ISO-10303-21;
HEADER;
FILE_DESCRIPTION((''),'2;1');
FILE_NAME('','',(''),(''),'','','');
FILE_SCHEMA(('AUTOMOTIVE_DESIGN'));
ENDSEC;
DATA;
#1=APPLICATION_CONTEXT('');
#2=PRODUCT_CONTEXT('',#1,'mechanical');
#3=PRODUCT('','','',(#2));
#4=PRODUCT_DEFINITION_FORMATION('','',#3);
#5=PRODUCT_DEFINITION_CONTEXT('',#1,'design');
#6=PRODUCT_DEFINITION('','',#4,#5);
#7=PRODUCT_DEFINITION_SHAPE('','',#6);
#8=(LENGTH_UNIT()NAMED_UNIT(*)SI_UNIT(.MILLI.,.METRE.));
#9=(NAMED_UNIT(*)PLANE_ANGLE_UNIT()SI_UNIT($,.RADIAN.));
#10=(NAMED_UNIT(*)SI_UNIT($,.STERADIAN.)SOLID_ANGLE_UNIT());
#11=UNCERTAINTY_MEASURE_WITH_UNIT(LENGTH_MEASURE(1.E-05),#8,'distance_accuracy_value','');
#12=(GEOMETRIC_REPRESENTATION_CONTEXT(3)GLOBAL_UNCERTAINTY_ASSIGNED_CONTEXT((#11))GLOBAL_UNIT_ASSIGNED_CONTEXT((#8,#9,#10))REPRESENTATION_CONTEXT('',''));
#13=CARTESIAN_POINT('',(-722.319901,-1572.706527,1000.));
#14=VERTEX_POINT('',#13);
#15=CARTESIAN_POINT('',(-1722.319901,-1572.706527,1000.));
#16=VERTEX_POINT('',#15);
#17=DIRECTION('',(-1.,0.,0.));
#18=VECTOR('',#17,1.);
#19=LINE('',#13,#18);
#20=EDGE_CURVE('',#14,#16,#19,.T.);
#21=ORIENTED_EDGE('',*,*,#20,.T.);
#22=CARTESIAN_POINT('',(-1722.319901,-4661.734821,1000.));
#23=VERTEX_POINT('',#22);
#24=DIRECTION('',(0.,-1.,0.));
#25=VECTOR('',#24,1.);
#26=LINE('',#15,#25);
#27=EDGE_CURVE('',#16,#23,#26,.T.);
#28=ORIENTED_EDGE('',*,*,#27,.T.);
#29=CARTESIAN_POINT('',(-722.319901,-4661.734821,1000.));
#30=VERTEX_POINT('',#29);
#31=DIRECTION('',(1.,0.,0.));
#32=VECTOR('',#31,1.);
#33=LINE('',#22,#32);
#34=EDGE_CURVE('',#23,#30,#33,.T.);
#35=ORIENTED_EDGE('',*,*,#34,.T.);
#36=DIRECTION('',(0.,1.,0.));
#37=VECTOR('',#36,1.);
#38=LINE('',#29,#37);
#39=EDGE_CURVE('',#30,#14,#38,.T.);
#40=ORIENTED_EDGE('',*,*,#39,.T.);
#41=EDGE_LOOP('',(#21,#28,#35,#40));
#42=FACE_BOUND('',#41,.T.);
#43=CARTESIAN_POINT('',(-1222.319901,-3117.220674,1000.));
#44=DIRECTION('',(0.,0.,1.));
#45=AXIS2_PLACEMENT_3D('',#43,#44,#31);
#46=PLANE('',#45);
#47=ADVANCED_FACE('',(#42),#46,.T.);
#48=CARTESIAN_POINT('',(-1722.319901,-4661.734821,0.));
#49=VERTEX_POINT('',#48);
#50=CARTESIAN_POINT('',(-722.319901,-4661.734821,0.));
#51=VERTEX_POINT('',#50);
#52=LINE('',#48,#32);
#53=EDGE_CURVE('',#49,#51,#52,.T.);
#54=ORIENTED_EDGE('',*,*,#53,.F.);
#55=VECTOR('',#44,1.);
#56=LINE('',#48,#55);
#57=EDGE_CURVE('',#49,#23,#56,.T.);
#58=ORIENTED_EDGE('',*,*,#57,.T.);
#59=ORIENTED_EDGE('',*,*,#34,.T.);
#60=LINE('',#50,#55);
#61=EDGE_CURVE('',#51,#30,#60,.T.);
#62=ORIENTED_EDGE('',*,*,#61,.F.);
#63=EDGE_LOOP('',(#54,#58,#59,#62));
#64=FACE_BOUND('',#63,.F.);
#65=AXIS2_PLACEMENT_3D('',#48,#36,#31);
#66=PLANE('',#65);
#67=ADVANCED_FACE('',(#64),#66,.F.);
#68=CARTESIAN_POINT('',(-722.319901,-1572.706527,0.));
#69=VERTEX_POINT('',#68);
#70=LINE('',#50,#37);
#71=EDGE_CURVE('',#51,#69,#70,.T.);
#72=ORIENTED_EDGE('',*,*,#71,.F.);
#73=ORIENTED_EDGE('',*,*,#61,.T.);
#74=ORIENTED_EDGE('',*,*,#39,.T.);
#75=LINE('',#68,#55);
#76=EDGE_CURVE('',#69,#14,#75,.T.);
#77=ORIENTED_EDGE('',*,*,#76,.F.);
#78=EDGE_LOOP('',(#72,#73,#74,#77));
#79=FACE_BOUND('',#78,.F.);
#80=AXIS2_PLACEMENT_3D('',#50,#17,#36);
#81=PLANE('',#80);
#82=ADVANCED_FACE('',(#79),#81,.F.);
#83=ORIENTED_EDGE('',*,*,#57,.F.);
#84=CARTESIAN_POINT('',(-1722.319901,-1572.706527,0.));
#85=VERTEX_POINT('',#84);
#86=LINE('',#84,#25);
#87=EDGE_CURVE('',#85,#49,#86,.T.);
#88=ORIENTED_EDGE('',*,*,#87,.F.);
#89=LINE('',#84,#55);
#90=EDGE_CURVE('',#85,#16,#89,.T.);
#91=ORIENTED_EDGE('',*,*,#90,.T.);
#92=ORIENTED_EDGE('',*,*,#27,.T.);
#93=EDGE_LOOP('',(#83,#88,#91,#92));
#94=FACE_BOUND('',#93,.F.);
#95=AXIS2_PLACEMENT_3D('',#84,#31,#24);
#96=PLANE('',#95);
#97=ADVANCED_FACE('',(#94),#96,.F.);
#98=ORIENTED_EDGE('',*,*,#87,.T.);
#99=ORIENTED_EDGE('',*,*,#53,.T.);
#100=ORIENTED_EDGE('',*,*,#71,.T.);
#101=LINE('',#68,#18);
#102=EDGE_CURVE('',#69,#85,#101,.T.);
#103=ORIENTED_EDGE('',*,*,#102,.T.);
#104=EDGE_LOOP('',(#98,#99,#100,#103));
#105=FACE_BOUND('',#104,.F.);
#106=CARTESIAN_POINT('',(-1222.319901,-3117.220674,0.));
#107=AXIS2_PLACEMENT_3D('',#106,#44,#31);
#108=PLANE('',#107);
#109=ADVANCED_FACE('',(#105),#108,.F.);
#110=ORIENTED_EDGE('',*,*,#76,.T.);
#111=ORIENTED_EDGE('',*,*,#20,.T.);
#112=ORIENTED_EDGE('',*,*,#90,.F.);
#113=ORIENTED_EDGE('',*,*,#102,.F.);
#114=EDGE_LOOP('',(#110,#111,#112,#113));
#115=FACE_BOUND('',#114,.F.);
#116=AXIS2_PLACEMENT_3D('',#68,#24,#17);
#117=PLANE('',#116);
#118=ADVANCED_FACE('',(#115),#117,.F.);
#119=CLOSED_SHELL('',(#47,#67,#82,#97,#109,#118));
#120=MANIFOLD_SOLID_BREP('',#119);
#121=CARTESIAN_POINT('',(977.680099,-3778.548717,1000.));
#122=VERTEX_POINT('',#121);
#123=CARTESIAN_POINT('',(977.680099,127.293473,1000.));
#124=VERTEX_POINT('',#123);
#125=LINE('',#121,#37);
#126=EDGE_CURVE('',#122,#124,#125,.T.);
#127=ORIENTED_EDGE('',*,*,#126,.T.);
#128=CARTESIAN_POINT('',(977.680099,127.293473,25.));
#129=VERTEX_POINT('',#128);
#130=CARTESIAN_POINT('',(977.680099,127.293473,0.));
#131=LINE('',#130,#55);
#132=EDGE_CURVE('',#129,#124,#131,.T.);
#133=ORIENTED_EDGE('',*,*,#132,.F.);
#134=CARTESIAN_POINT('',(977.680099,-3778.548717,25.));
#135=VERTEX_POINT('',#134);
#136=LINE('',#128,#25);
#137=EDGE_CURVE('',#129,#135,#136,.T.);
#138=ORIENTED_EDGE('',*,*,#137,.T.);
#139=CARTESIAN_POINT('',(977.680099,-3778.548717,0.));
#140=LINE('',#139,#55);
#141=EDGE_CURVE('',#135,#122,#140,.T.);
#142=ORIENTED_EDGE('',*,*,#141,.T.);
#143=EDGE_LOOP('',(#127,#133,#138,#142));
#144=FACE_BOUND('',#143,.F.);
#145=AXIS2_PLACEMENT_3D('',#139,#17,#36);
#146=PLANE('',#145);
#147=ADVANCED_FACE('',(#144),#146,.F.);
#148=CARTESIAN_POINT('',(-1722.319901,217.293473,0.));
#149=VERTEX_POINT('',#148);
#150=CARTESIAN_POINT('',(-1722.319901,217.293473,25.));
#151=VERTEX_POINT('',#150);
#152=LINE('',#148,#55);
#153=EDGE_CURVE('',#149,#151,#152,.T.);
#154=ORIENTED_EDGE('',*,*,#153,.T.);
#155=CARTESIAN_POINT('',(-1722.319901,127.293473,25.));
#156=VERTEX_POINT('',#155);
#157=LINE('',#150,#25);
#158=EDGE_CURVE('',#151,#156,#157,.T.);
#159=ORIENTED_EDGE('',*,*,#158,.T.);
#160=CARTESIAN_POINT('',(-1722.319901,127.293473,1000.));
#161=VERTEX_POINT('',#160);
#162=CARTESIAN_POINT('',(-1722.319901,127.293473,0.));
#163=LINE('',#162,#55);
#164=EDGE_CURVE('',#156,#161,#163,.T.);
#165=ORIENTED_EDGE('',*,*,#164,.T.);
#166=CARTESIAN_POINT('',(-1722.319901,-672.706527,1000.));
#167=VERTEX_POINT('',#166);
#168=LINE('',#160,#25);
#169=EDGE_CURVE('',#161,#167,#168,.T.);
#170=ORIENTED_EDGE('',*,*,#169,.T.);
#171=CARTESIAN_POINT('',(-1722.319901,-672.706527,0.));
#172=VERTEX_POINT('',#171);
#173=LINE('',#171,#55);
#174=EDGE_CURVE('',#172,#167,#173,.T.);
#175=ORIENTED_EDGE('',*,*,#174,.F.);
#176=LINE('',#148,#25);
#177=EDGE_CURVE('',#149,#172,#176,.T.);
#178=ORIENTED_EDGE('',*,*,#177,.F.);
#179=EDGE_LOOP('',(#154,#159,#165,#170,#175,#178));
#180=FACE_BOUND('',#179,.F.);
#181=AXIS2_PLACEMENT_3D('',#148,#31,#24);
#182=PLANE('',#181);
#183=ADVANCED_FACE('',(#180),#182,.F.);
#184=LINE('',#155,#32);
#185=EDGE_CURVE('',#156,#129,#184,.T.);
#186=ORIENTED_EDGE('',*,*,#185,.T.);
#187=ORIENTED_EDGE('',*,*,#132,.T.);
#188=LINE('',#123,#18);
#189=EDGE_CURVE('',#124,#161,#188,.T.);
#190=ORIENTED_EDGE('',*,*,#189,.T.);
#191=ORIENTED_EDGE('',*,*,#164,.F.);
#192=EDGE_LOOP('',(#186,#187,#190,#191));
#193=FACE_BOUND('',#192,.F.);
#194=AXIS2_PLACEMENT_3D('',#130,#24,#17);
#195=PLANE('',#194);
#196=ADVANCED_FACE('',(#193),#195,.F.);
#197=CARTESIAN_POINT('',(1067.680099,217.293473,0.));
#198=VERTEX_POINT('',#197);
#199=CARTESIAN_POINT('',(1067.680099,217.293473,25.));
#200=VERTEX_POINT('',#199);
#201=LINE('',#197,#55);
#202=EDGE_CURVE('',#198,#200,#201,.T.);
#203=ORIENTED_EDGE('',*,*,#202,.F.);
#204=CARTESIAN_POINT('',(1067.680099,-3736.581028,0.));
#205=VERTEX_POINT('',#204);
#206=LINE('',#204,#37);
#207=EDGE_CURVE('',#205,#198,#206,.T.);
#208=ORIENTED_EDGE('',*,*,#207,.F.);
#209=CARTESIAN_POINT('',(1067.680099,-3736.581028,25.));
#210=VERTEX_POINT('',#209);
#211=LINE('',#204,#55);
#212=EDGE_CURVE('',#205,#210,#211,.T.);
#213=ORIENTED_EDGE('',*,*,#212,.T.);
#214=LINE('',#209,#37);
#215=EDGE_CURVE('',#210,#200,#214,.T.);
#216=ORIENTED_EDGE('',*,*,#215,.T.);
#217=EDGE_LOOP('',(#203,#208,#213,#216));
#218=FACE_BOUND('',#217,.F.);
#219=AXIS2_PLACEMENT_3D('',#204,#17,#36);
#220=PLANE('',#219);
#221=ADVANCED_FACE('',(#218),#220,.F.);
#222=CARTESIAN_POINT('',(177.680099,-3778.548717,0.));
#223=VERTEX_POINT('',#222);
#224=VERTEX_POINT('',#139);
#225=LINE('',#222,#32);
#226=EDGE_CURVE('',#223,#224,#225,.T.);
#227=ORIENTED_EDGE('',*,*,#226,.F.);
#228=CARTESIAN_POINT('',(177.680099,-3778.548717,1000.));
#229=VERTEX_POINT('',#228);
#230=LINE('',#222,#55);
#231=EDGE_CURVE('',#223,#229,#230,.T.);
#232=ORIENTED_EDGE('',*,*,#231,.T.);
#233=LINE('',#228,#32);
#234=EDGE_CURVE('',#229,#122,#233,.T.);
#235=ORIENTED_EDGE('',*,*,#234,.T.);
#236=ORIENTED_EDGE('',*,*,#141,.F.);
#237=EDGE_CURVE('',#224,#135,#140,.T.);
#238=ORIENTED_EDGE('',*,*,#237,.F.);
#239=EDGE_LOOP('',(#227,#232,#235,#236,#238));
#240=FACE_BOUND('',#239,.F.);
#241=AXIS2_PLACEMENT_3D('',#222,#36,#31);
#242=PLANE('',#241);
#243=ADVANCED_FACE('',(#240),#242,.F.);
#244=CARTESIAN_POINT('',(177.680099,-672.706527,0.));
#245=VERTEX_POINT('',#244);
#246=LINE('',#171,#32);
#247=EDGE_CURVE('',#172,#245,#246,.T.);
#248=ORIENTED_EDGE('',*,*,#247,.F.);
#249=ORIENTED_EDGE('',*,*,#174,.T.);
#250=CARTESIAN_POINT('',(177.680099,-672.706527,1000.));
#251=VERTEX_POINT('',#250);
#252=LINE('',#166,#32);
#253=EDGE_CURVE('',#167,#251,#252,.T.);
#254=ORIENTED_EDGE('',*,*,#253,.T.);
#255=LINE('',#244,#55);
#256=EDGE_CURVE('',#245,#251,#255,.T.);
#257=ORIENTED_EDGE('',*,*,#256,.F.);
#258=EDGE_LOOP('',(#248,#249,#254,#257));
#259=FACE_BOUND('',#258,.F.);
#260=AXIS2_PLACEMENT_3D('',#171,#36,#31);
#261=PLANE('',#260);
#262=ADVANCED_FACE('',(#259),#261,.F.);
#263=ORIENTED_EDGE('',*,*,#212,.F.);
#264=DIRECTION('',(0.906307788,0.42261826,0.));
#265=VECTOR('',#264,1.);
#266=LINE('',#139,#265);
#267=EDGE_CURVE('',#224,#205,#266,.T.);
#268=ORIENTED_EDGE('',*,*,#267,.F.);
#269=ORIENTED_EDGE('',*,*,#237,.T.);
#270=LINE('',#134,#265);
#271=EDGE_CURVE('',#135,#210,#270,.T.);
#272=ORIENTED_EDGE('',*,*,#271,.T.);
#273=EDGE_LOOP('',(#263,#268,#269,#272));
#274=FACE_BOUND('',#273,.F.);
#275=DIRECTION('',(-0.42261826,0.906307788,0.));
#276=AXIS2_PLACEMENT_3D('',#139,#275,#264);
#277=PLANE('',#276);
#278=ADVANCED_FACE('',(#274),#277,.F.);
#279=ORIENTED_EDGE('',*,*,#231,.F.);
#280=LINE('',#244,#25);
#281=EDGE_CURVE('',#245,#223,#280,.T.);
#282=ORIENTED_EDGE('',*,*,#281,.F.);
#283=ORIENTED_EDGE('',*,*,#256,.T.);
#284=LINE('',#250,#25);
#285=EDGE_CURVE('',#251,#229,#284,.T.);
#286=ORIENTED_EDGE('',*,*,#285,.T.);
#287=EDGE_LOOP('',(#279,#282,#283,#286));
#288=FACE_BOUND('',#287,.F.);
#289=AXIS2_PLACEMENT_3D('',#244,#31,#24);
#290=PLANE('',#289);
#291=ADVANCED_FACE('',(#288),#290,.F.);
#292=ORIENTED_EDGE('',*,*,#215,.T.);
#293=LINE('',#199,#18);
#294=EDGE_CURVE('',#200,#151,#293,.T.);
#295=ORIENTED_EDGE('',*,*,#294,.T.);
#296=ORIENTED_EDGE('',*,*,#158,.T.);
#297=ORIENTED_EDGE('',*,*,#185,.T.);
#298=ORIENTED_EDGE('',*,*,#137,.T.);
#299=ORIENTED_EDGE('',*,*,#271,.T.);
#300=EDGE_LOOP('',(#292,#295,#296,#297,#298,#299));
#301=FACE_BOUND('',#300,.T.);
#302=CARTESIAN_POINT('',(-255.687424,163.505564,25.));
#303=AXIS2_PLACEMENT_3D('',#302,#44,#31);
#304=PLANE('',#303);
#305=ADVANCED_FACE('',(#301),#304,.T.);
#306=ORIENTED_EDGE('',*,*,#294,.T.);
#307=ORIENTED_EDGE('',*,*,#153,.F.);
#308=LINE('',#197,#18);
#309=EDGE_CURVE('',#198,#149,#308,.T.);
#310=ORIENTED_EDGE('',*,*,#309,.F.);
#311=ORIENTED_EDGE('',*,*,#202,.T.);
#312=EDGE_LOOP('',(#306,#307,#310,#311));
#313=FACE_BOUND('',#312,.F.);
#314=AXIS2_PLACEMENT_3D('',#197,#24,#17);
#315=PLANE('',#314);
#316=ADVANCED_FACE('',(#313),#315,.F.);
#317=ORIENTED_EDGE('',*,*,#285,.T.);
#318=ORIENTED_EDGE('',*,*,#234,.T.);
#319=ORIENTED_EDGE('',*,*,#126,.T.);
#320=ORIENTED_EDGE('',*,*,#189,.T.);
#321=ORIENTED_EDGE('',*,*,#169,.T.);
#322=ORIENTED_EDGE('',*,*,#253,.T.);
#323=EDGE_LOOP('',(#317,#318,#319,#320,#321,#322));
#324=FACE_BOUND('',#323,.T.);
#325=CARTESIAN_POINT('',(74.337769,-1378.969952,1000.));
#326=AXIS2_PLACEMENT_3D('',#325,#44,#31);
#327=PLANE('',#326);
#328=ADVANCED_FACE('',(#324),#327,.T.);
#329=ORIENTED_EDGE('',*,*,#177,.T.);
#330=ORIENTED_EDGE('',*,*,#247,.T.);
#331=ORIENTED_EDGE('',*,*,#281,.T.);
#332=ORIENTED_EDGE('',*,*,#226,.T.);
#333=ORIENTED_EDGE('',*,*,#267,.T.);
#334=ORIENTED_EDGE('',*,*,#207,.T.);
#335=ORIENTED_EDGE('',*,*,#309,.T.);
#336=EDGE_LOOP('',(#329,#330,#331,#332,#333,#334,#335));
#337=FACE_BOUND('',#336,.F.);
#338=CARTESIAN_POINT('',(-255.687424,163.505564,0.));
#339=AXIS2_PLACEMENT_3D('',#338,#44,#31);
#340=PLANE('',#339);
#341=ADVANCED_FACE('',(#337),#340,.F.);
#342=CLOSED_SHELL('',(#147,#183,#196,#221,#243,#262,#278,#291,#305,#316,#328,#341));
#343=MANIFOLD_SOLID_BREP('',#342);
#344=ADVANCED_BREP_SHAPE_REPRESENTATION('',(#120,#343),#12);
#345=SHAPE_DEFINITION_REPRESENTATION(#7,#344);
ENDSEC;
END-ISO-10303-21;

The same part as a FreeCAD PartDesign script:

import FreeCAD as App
import Part
import Sketcher

V = App.Vector
Q = App.Units.Quantity


def add_polygon(sketch, points):
    """Adds a closed chain of lines whose ends are joined by coincident constraints."""
    first, n = sketch.GeometryCount, len(points)
    for a, b in zip(points, points[1:] + points[:1]):
        sketch.addGeometry(Part.LineSegment(App.Vector(*a, 0), App.Vector(*b, 0)), False)
    for i in range(n):
        sketch.addConstraint(Sketcher.Constraint("Coincident", first + i, 2, first + (i + 1) % n, 1))

doc = App.newDocument("Part")
body = doc.addObject("PartDesign::Body", "Body")

sketch1 = body.newObject("Sketcher::SketchObject", "Sketch")
sketch1.AttachmentSupport = (doc.getObject("XY_Plane"), [""])
sketch1.MapMode = "FlatFace"
add_polygon(sketch1, [(-722, -1573), (-1722, -1573), (-1722, -4662), (-722, -4662)])
sketch1.addConstraint(Sketcher.Constraint("Horizontal", 0))
sketch1.addConstraint(Sketcher.Constraint("Vertical", 1))
sketch1.addConstraint(Sketcher.Constraint("Horizontal", 2))
sketch1.addConstraint(Sketcher.Constraint("Vertical", 3))
sketch1.addConstraint(Sketcher.Constraint("DistanceX", 0, 2, 0, 1, 1000.0))
sketch1.addConstraint(Sketcher.Constraint("DistanceX", 0, 2, -1, 1, 1722.319901))
sketch1.addConstraint(Sketcher.Constraint("DistanceY", 1, 2, 1, 1, 3089.028294))
sketch1.addConstraint(Sketcher.Constraint("DistanceY", 1, 2, -1, 1, 4661.734821))
pad1 = body.newObject("PartDesign::Pad", "Pad")
pad1.Profile = sketch1
pad1.Length = 1000
body2 = doc.addObject("PartDesign::Body", "Body001")

sketch2 = body2.newObject("Sketcher::SketchObject", "Sketch001")
sketch2.AttachmentSupport = (doc.getObject("XY_Plane001"), [""])
sketch2.MapMode = "FlatFace"
add_polygon(sketch2, [(978, 127), (-1722, 127), (-1722, -673), (178, -673), (178, -3779), (978, -3779)])
sketch2.addConstraint(Sketcher.Constraint("Horizontal", 0))
sketch2.addConstraint(Sketcher.Constraint("Vertical", 1))
sketch2.addConstraint(Sketcher.Constraint("Horizontal", 2))
sketch2.addConstraint(Sketcher.Constraint("Vertical", 3))
sketch2.addConstraint(Sketcher.Constraint("Horizontal", 4))
sketch2.addConstraint(Sketcher.Constraint("Vertical", 5))
sketch2.addConstraint(Sketcher.Constraint("Equal", 4, 1))
sketch2.addConstraint(Sketcher.Constraint("DistanceX", 0, 2, 0, 1, 2700.0))
sketch2.addConstraint(Sketcher.Constraint("DistanceX", 2, 1, 2, 2, 1900.0))
sketch2.addConstraint(Sketcher.Constraint("DistanceY", 3, 2, 3, 1, 3105.84219))
sketch2.addConstraint(Sketcher.Constraint("DistanceX", 0, 2, -1, 1, 1722.319901))
sketch2.addConstraint(Sketcher.Constraint("DistanceY", -1, 1, 0, 2, 127.293473))
pad2 = body2.newObject("PartDesign::Pad", "Pad001")
pad2.Profile = sketch2
pad2.Length = 1000

sketch3 = body2.newObject("Sketcher::SketchObject", "Sketch002")
sketch3.AttachmentSupport = (doc.getObject("XY_Plane001"), [""])
sketch3.MapMode = "FlatFace"
add_polygon(sketch3, [(-1722, 217), (-1722, 127), (978, 127), (978, -3779), (1068, -3737), (1068, 217)])
sketch3.addConstraint(Sketcher.Constraint("Vertical", 0))
sketch3.addConstraint(Sketcher.Constraint("Horizontal", 1))
sketch3.addConstraint(Sketcher.Constraint("Vertical", 2))
sketch3.addConstraint(Sketcher.Constraint("Vertical", 4))
sketch3.addConstraint(Sketcher.Constraint("Horizontal", 5))
sketch3.addConstraint(Sketcher.Constraint("DistanceX", 1, 1, 1, 2, 2700.0))
sketch3.addConstraint(Sketcher.Constraint("DistanceX", 5, 2, 5, 1, 2790.0))
sketch3.addConstraint(Sketcher.Constraint("DistanceY", 0, 2, 0, 1, 90.0))
sketch3.addConstraint(Sketcher.Constraint("Angle", 3, Q("25 deg")))
sketch3.addConstraint(Sketcher.Constraint("DistanceY", 4, 1, 4, 2, 3953.874501))
sketch3.addConstraint(Sketcher.Constraint("DistanceX", 0, 2, -1, 1, 1722.319901))
sketch3.addConstraint(Sketcher.Constraint("DistanceY", 3, 2, -1, 1, 3736.581028))
pad3 = body2.newObject("PartDesign::Pad", "Pad002")
pad3.Profile = sketch3
pad3.Length = 25

doc.recompute()
